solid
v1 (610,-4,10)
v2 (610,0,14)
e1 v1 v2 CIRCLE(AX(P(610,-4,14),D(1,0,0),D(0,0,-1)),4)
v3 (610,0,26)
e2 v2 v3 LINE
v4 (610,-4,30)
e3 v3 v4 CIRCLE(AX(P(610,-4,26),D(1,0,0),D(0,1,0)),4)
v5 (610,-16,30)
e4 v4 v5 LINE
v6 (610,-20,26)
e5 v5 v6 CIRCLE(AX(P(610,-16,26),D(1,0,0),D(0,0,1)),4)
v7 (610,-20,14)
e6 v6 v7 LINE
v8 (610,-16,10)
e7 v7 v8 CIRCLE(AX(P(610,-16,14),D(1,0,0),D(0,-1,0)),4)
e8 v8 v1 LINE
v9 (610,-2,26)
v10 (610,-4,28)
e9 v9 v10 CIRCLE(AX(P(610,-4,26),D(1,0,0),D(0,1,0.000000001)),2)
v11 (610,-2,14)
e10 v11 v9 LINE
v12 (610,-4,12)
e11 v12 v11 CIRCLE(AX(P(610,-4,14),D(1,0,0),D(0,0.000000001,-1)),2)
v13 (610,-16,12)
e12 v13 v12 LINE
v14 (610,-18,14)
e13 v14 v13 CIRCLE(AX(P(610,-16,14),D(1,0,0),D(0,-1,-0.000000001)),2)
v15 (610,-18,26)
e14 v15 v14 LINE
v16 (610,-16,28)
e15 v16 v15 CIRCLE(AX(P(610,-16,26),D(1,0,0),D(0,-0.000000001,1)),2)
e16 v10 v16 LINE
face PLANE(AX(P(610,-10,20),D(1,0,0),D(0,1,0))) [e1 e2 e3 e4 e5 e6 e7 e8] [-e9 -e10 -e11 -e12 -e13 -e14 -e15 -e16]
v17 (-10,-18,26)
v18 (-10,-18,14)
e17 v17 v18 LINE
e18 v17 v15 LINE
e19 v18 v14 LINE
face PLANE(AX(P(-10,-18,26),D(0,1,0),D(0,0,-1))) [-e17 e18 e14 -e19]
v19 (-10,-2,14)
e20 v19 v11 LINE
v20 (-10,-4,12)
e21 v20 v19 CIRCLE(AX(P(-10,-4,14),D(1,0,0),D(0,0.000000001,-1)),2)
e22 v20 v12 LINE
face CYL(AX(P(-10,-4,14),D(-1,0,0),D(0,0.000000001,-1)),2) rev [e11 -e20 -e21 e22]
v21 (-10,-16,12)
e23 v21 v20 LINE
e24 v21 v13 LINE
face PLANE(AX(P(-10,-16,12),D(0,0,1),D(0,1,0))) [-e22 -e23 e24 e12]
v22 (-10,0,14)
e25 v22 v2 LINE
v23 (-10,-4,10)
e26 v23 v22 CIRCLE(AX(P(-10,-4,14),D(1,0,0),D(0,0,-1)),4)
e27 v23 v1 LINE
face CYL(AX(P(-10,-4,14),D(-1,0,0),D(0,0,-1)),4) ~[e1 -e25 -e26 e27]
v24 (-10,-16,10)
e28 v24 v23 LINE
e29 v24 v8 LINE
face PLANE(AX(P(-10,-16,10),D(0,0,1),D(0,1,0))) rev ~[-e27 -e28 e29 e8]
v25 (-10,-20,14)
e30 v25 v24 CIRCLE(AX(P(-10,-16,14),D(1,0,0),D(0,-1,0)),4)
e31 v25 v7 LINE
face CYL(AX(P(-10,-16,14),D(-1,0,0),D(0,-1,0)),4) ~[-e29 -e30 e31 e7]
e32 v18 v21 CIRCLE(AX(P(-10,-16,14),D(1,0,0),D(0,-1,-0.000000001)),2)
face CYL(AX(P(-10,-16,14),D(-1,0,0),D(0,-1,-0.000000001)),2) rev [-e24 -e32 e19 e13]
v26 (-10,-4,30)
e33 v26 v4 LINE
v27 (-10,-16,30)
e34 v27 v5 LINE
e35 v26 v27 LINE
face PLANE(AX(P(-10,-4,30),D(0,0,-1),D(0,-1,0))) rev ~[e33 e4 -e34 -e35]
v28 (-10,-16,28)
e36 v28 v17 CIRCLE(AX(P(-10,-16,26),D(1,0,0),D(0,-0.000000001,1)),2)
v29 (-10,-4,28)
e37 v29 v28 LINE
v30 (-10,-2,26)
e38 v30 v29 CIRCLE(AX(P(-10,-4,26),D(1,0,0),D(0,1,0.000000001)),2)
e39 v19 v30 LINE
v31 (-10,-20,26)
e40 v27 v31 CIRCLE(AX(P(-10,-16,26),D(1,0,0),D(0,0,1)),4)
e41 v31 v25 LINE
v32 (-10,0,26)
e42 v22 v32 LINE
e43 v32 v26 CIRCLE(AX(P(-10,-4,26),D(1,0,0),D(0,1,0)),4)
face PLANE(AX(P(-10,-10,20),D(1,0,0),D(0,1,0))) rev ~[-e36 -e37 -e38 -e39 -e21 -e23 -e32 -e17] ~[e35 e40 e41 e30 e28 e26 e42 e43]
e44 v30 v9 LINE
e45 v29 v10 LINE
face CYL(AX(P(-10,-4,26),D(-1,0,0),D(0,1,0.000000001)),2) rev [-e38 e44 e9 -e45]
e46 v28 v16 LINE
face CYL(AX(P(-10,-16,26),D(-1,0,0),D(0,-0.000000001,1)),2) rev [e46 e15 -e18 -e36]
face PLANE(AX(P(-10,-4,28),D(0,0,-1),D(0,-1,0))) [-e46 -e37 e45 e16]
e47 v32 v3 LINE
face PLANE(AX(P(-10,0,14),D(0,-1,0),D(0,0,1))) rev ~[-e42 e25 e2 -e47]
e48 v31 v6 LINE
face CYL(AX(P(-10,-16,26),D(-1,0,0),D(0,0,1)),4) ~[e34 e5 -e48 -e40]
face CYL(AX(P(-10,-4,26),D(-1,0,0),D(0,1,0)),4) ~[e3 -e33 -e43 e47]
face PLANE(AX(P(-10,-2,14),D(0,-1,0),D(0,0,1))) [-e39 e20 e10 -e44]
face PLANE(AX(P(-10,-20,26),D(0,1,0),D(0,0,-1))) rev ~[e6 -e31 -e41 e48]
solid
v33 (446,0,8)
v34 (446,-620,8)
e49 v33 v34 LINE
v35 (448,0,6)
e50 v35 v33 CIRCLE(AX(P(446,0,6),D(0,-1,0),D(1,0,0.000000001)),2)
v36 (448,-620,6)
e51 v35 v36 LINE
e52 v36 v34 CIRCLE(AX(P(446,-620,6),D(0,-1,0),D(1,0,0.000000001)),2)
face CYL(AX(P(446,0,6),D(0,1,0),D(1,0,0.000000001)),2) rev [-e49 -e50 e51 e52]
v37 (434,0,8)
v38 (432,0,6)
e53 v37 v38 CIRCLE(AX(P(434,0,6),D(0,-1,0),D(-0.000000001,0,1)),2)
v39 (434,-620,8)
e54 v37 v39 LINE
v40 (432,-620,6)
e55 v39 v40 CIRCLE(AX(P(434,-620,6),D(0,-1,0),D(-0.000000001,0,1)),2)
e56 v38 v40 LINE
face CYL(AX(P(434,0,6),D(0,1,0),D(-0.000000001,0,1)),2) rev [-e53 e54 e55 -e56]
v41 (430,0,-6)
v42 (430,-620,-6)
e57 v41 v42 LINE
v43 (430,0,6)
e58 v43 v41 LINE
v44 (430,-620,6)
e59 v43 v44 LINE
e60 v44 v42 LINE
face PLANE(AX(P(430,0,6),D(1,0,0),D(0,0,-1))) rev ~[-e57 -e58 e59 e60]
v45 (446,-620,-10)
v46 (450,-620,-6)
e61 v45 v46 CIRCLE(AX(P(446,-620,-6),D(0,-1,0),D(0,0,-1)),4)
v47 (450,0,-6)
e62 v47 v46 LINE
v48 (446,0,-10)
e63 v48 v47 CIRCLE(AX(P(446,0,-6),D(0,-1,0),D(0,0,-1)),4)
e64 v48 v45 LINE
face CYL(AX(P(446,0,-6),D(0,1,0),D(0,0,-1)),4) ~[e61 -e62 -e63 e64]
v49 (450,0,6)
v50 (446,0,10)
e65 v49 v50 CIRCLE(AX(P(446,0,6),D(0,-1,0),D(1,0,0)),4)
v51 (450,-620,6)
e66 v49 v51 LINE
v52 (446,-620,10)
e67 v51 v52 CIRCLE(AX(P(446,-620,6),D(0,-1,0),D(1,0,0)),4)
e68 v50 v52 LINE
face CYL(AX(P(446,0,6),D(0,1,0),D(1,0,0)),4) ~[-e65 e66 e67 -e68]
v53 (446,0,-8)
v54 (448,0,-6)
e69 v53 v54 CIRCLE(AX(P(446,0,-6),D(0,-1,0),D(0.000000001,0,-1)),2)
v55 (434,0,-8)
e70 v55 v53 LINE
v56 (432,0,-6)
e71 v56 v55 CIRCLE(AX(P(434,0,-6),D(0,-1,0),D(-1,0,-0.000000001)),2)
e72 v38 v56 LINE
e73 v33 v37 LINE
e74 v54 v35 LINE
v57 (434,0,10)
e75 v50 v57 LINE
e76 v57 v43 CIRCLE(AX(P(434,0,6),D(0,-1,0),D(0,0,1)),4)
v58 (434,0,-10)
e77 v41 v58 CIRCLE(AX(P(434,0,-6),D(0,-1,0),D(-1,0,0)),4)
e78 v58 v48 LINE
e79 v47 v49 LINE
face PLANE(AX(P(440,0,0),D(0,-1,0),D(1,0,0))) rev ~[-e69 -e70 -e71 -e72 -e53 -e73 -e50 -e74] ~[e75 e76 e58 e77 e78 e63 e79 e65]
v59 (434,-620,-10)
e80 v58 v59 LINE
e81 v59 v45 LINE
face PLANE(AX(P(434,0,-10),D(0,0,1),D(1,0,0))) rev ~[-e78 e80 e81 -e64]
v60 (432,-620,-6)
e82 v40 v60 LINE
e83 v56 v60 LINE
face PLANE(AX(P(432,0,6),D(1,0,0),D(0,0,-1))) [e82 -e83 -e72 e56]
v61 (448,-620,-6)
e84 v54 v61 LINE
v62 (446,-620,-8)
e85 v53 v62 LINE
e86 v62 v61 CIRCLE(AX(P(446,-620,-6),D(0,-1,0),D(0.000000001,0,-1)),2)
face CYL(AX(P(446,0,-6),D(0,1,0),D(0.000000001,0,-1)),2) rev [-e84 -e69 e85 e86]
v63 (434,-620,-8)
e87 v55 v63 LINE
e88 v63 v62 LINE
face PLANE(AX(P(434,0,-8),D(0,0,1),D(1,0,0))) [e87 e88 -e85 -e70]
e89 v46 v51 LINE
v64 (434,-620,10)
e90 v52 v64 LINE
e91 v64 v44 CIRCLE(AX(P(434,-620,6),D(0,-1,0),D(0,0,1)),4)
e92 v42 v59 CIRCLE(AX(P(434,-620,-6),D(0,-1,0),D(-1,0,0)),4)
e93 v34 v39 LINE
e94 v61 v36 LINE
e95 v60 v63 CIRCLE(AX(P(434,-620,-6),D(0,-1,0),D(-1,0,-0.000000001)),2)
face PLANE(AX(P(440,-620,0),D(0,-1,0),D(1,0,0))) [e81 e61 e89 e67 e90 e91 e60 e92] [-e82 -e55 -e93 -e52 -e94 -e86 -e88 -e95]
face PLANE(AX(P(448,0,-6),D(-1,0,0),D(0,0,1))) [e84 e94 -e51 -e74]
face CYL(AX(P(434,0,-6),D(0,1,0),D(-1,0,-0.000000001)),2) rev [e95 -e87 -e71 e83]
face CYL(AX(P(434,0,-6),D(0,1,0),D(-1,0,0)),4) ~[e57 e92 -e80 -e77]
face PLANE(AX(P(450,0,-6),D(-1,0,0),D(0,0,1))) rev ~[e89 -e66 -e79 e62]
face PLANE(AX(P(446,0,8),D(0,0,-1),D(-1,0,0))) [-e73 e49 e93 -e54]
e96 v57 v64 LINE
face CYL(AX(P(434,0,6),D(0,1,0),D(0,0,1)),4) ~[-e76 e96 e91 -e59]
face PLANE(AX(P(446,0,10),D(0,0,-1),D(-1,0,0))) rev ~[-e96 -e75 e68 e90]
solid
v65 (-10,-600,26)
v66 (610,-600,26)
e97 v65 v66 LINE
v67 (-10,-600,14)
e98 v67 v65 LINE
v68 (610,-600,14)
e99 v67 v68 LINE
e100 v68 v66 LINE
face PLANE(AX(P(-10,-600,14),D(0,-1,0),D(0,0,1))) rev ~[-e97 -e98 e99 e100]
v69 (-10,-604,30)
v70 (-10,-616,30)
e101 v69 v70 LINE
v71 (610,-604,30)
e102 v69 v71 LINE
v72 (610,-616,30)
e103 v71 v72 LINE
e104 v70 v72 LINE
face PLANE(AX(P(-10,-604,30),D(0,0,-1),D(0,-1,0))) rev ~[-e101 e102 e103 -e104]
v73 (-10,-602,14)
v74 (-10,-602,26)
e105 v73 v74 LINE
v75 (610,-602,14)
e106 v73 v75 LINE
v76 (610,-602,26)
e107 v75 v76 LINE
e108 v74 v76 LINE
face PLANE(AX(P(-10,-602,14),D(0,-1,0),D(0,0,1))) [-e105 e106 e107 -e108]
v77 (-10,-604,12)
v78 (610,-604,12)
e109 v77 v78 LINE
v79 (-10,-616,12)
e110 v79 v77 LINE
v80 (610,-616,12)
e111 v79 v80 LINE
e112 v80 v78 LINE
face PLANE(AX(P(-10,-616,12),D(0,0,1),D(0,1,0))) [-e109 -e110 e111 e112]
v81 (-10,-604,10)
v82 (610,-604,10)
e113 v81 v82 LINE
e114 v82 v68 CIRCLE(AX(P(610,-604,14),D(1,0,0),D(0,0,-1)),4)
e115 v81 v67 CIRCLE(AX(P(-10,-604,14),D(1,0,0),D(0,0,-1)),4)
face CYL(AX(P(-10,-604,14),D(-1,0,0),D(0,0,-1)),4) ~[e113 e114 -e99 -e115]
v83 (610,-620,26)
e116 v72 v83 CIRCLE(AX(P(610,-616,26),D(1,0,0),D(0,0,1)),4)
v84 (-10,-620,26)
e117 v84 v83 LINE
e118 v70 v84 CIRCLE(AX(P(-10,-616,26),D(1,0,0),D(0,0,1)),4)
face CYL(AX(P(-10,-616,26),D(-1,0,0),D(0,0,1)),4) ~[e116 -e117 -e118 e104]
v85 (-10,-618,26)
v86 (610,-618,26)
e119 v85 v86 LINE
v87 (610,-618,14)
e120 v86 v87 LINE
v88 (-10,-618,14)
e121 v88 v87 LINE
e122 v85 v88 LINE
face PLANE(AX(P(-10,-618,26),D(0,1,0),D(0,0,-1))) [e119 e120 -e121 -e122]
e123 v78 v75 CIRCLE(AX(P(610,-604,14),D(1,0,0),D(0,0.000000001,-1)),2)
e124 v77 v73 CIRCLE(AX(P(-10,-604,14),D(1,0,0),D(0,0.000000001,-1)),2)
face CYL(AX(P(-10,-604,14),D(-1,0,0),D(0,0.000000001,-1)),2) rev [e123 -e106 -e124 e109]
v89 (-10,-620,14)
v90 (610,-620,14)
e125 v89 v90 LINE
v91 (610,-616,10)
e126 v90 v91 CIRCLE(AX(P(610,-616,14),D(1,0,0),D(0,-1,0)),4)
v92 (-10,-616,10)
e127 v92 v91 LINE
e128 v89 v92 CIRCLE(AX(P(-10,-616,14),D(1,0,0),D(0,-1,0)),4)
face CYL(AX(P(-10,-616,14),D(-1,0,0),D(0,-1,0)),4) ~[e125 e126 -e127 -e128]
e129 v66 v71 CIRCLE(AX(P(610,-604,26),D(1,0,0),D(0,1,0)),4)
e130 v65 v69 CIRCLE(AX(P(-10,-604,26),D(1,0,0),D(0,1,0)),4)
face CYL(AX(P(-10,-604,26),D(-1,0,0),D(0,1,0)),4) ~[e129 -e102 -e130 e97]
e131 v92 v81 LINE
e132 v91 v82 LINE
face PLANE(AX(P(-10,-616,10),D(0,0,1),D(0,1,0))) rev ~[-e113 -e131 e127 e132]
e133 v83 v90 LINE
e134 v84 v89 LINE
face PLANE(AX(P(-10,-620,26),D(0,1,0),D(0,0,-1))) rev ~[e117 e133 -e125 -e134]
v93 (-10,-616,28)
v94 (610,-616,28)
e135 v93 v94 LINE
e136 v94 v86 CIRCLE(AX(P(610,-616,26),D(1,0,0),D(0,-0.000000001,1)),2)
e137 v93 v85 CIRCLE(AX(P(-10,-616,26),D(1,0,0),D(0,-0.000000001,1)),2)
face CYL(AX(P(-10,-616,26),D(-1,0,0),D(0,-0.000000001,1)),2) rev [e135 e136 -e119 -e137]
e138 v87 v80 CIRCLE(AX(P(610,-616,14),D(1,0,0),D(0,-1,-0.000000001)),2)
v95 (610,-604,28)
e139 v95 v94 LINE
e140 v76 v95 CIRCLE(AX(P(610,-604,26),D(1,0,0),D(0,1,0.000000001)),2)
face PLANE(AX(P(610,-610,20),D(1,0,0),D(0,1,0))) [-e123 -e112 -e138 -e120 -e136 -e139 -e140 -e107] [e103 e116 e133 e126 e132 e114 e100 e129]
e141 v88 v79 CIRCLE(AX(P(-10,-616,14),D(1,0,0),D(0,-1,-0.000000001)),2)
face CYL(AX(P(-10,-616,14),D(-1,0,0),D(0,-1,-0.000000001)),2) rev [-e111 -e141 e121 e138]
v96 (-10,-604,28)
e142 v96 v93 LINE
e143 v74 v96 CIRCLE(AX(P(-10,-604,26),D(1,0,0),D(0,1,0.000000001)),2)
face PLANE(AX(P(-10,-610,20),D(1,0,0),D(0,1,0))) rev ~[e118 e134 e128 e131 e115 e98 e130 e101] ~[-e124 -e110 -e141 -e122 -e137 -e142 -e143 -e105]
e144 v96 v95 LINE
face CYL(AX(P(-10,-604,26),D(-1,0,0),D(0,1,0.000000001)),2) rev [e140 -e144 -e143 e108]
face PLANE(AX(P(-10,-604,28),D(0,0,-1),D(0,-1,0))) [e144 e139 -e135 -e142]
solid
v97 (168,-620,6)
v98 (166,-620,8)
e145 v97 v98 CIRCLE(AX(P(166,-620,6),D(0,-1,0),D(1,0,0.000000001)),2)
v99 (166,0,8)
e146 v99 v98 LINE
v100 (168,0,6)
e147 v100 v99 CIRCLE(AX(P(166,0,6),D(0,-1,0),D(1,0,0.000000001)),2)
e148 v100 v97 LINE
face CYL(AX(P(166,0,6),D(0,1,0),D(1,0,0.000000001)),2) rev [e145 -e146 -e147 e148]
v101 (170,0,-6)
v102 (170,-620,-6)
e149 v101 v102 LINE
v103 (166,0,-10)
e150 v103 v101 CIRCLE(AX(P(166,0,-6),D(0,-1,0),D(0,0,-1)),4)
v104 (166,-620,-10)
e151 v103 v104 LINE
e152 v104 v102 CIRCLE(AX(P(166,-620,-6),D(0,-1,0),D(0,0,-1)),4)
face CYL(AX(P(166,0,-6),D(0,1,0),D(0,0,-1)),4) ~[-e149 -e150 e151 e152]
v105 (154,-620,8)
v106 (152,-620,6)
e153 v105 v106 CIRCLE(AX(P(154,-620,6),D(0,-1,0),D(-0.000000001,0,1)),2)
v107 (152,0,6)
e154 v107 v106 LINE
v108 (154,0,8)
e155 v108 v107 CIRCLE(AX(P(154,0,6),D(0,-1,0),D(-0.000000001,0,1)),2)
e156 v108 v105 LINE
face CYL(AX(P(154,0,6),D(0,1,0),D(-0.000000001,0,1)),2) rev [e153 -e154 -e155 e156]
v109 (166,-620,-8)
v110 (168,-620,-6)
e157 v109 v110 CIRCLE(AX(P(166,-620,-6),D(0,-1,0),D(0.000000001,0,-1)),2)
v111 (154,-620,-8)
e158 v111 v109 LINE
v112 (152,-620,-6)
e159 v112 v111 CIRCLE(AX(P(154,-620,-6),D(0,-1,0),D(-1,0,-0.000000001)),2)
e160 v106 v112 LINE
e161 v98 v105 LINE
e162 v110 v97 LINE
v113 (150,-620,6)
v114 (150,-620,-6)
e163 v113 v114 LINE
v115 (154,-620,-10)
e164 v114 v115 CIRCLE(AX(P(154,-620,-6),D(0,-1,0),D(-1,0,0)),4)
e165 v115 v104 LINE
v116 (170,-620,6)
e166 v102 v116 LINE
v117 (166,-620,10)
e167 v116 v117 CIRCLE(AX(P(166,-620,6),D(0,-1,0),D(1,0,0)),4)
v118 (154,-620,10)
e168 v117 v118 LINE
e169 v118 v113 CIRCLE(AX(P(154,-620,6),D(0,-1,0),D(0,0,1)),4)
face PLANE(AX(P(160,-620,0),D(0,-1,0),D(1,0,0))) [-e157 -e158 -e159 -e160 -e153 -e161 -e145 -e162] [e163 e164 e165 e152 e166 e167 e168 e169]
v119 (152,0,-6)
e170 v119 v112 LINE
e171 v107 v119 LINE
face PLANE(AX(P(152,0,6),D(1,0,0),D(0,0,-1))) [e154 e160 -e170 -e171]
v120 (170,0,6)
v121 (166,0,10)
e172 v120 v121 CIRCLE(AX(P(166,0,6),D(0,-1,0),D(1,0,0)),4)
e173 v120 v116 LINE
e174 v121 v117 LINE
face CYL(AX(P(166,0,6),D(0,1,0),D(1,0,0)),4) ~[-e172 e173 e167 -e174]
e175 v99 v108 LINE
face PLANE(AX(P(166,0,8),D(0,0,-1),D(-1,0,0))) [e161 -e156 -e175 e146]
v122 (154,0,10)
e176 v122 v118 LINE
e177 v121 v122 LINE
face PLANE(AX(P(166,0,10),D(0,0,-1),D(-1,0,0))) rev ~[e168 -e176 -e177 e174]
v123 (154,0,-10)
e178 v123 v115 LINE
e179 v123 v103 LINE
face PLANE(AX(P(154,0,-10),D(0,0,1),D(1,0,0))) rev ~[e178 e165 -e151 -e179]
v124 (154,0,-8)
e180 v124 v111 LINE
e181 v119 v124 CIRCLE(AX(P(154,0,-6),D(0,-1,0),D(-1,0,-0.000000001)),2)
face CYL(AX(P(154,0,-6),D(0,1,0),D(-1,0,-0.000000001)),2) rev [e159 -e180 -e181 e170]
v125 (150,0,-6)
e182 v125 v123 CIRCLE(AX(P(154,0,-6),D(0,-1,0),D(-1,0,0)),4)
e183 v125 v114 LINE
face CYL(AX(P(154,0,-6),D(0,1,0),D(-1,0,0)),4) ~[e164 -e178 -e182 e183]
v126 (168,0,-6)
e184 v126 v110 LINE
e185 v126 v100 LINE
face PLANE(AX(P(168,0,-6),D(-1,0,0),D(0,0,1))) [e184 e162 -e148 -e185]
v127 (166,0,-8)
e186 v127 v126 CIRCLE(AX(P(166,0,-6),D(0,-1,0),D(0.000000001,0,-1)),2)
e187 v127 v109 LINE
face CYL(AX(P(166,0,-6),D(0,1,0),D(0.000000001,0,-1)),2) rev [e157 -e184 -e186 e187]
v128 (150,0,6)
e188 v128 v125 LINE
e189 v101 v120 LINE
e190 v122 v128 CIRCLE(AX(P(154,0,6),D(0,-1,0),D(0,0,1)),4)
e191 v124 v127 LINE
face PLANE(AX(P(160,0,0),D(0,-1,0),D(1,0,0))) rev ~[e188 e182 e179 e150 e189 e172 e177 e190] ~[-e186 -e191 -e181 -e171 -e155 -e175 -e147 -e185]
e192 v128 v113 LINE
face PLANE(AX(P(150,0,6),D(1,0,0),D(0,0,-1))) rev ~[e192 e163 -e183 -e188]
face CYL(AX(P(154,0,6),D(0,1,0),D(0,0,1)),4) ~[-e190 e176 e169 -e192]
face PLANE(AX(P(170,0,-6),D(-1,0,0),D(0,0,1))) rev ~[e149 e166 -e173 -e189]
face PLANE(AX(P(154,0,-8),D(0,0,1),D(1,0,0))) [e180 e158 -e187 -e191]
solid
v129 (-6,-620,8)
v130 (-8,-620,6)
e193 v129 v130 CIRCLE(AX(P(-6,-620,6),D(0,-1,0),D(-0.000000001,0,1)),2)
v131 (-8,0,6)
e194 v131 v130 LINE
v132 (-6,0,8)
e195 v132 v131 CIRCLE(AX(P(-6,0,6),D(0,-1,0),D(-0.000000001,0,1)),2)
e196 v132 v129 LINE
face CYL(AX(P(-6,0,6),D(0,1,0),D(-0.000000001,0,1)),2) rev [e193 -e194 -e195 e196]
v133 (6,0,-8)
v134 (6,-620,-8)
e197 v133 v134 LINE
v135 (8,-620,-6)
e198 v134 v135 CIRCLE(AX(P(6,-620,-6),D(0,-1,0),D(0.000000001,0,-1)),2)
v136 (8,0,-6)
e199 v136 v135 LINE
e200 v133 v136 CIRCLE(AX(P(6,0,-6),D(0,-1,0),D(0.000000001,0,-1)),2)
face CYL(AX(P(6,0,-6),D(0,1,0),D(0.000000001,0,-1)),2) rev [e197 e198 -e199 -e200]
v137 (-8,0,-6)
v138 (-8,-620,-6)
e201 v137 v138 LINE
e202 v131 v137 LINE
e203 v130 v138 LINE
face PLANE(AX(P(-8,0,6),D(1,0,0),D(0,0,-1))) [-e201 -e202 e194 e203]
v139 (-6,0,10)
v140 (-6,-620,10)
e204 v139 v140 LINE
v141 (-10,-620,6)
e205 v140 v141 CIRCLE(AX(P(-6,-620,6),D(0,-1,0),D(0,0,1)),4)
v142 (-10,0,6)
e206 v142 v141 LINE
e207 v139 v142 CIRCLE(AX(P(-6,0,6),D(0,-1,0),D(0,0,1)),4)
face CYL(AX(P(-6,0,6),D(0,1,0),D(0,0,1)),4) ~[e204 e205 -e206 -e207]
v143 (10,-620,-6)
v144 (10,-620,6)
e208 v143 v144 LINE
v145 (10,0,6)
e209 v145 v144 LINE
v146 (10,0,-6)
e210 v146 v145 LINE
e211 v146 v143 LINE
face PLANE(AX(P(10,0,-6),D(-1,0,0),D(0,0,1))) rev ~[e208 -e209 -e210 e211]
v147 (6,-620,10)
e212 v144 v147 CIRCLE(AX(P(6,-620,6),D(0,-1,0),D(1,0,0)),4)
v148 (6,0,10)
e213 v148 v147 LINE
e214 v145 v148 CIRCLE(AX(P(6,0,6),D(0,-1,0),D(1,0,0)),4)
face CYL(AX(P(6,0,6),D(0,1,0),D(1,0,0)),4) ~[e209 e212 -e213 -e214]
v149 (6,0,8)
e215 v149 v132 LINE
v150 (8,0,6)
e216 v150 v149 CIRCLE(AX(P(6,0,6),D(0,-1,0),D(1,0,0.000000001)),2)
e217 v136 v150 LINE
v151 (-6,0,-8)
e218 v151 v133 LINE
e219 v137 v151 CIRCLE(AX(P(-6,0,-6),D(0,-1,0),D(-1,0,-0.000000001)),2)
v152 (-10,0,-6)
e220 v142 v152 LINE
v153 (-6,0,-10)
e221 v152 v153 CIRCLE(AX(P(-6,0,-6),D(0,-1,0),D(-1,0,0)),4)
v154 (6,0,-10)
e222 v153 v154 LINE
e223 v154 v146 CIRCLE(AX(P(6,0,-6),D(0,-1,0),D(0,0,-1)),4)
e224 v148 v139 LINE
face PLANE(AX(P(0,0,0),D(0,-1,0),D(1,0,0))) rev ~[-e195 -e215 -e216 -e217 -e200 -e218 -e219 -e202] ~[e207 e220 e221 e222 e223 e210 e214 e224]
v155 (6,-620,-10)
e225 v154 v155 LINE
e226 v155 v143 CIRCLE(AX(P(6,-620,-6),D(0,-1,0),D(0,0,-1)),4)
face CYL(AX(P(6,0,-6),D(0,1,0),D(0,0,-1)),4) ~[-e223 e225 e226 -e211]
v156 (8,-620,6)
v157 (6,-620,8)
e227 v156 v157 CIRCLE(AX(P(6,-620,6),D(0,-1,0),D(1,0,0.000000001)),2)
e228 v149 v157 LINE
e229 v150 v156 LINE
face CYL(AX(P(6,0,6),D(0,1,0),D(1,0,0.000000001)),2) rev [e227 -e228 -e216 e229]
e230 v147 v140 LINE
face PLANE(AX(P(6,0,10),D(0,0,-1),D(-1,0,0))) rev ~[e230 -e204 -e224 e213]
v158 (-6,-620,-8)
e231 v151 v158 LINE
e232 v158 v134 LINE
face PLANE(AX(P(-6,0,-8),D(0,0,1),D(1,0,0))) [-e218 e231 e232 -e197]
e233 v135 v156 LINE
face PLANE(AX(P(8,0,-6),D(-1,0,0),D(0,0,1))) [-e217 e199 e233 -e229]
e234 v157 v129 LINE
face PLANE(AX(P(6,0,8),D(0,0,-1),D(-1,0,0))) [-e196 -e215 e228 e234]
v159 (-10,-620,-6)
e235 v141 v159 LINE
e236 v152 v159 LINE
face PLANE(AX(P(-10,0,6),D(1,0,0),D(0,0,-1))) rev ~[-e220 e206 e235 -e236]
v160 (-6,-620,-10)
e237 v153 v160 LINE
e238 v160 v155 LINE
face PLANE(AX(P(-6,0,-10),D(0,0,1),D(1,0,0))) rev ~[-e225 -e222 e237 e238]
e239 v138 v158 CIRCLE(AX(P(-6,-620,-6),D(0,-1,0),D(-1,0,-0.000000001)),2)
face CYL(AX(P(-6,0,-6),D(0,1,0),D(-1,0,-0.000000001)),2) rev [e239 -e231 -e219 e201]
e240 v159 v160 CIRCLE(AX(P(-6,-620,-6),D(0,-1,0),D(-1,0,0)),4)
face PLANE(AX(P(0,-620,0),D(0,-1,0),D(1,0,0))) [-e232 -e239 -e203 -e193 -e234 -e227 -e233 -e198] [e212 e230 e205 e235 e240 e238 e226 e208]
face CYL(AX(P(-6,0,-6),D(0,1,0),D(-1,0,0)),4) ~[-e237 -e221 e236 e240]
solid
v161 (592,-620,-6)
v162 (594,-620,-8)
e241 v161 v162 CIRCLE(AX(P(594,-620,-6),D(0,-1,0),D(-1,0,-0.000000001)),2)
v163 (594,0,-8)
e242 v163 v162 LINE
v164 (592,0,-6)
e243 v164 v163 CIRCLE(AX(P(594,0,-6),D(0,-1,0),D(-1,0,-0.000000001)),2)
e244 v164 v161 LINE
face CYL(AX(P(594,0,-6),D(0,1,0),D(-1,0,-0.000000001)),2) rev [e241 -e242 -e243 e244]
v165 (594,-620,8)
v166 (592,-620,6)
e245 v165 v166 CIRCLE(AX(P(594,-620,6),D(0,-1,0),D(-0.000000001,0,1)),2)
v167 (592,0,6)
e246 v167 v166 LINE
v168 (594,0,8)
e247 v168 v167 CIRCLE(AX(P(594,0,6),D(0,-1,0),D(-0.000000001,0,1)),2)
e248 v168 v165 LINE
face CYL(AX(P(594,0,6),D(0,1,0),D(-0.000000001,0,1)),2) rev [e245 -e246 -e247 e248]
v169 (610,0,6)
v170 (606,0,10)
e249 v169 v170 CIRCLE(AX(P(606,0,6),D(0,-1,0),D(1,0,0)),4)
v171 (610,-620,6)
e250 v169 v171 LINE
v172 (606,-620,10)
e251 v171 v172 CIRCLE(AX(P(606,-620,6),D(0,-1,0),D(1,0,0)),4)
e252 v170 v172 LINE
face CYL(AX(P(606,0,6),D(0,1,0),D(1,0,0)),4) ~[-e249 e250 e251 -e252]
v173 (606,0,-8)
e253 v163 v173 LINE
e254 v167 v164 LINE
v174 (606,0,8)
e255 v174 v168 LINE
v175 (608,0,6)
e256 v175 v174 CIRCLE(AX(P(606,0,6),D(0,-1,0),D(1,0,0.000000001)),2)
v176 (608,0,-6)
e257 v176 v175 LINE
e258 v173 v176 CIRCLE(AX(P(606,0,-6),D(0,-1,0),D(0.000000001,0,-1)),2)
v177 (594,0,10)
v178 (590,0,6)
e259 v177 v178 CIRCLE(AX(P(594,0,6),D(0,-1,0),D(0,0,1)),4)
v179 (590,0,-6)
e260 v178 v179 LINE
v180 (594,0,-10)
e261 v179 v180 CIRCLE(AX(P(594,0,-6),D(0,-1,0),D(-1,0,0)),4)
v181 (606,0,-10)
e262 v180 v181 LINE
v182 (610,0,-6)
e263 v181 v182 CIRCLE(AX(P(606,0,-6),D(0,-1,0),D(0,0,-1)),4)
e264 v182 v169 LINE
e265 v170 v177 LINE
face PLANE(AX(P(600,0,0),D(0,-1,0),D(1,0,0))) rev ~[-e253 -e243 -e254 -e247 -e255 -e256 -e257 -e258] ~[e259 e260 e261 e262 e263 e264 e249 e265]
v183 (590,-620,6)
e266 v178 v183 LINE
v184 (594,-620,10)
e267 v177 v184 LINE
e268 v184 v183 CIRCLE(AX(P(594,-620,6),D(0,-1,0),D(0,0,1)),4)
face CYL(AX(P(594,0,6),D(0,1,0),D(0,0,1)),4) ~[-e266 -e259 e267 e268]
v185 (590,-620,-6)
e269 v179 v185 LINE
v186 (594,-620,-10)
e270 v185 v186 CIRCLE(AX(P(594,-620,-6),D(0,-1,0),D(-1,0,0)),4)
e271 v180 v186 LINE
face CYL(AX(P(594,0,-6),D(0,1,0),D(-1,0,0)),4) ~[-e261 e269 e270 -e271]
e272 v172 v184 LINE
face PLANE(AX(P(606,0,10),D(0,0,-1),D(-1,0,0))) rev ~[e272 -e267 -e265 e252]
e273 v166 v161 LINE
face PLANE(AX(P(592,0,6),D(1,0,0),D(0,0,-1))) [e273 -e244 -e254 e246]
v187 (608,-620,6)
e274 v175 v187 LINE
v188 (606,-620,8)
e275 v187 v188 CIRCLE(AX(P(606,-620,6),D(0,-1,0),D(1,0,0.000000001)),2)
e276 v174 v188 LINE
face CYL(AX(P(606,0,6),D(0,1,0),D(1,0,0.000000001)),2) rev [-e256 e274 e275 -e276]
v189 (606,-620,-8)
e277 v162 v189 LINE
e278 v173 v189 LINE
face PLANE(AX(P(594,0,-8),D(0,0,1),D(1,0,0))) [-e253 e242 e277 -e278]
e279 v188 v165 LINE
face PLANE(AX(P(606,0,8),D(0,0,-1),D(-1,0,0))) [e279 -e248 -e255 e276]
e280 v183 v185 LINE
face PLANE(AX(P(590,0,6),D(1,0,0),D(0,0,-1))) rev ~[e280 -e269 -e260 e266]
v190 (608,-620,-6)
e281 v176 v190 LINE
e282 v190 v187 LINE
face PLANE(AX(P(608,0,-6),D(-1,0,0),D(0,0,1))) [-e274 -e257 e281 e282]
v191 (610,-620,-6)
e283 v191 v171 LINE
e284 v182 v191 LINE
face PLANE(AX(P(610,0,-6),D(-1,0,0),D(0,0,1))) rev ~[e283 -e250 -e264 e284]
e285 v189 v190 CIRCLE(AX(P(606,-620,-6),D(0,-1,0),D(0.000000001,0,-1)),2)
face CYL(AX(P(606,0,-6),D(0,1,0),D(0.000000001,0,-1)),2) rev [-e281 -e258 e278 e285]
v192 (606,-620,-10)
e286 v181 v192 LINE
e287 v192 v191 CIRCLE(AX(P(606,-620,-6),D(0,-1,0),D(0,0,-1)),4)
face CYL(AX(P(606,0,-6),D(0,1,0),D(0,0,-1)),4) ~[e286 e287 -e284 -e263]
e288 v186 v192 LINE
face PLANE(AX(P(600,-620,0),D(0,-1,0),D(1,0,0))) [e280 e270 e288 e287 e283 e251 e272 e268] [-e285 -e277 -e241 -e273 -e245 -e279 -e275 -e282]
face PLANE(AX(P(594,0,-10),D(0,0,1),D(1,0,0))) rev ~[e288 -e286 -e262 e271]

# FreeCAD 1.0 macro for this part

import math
import FreeCAD as App
import Part
import Sketcher

V = App.Vector

doc = App.newDocument("Part")
body = doc.addObject("PartDesign::Body", "Body")

# Sketch on XZ plane
sketch1 = doc.addObject("Sketcher::SketchObject", "Sketch")
body.addObject(sketch1)
sketch1.AttachmentSupport = (doc.XZ_Plane, [""])
sketch1.MapMode = "FlatFace"
sketch1.addGeometry([
    Part.LineSegment(V(594, -10, 0), V(606, -10, 0)),  # 0
    Part.ArcOfCircle(Part.Circle(V(606, -6, 0), V(0, 0, 1), 4), math.radians(-90), math.radians(0)),  # 1
    Part.LineSegment(V(610, -6, 0), V(610, 6, 0)),  # 2
    Part.ArcOfCircle(Part.Circle(V(606, 6, 0), V(0, 0, 1), 4), math.radians(0), math.radians(90)),  # 3
    Part.LineSegment(V(606, 10, 0), V(594, 10, 0)),  # 4
    Part.ArcOfCircle(Part.Circle(V(594, 6, 0), V(0, 0, 1), 4), math.radians(90), math.radians(180)),  # 5
    Part.LineSegment(V(590, 6, 0), V(590, -6, 0)),  # 6
    Part.ArcOfCircle(Part.Circle(V(594, -6, 0), V(0, 0, 1), 4), math.radians(180), math.radians(270)),  # 7
    Part.LineSegment(V(606, -8, 0), V(594, -8, 0)),  # 8
    Part.ArcOfCircle(Part.Circle(V(594, -6, 0), V(0, 0, 1), 2), math.radians(-180), math.radians(-90)),  # 9
    Part.LineSegment(V(592, -6, 0), V(592, 6, 0)),  # 10
    Part.ArcOfCircle(Part.Circle(V(594, 6, 0), V(0, 0, 1), 2), math.radians(90), math.radians(180)),  # 11
    Part.LineSegment(V(594, 8, 0), V(606, 8, 0)),  # 12
    Part.ArcOfCircle(Part.Circle(V(606, 6, 0), V(0, 0, 1), 2), math.radians(0), math.radians(90)),  # 13
    Part.LineSegment(V(608, 6, 0), V(608, -6, 0)),  # 14
    Part.ArcOfCircle(Part.Circle(V(606, -6, 0), V(0, 0, 1), 2), math.radians(-90), math.radians(0)),  # 15
], False)
sketch1.addConstraint([
    Sketcher.Constraint("Tangent", 0, 2, 1, 1),
    Sketcher.Constraint("Tangent", 1, 2, 2, 1),
    Sketcher.Constraint("Tangent", 2, 2, 3, 1),
    Sketcher.Constraint("Tangent", 3, 2, 4, 1),
    Sketcher.Constraint("Tangent", 4, 2, 5, 1),
    Sketcher.Constraint("Tangent", 5, 2, 6, 1),
    Sketcher.Constraint("Tangent", 6, 2, 7, 1),
    Sketcher.Constraint("Tangent", 7, 2, 0, 1),
    Sketcher.Constraint("Tangent", 8, 2, 9, 2),
    Sketcher.Constraint("Tangent", 9, 1, 10, 1),
    Sketcher.Constraint("Tangent", 10, 2, 11, 2),
    Sketcher.Constraint("Tangent", 11, 1, 12, 1),
    Sketcher.Constraint("Tangent", 12, 2, 13, 2),
    Sketcher.Constraint("Tangent", 13, 1, 14, 1),
    Sketcher.Constraint("Tangent", 14, 2, 15, 2),
    Sketcher.Constraint("Tangent", 15, 1, 8, 1),
    Sketcher.Constraint("Horizontal", 0),
    Sketcher.Constraint("Vertical", 2),
    Sketcher.Constraint("Horizontal", 4),
    Sketcher.Constraint("Vertical", 6),
    Sketcher.Constraint("Horizontal", 8),
    Sketcher.Constraint("Vertical", 10),
    Sketcher.Constraint("Horizontal", 12),
    Sketcher.Constraint("Vertical", 14),
    Sketcher.Constraint("Coincident", 9, 3, 7, 3),
    Sketcher.Constraint("Coincident", 11, 3, 5, 3),
    Sketcher.Constraint("Coincident", 13, 3, 3, 3),
    Sketcher.Constraint("Equal", 1, 3),
    Sketcher.Constraint("Equal", 3, 5),
    Sketcher.Constraint("Equal", 5, 7),
    Sketcher.Constraint("Equal", 13, 15),
    Sketcher.Constraint("Equal", 12, 2),
    Sketcher.Constraint("Radius", 1, 4.0),
    Sketcher.Constraint("Radius", 9, 2.0),
    Sketcher.Constraint("DistanceX", 0, 1, 0, 2, 12.0),
    Sketcher.Constraint("DistanceX", -1, 1, 1, 3, 606.0),
    Sketcher.Constraint("DistanceY", 1, 3, -1, 1, 6.0),
])
pad1 = doc.addObject("PartDesign::Pad", "Pad")
body.addObject(pad1)
pad1.Profile = sketch1
pad1.Length = 620
body2 = doc.addObject("PartDesign::Body", "Body001")

# Sketch on XZ plane
sketch2 = doc.addObject("Sketcher::SketchObject", "Sketch001")
body2.addObject(sketch2)
sketch2.AttachmentSupport = (doc.getObject("XZ_Plane001"), [""])
sketch2.MapMode = "FlatFace"
sketch2.addGeometry([
    Part.LineSegment(V(-6, -10, 0), V(6, -10, 0)),  # 0
    Part.ArcOfCircle(Part.Circle(V(6, -6, 0), V(0, 0, 1), 4), math.radians(-90), math.radians(0)),  # 1
    Part.LineSegment(V(10, -6, 0), V(10, 6, 0)),  # 2
    Part.ArcOfCircle(Part.Circle(V(6, 6, 0), V(0, 0, 1), 4), math.radians(0), math.radians(90)),  # 3
    Part.LineSegment(V(6, 10, 0), V(-6, 10, 0)),  # 4
    Part.ArcOfCircle(Part.Circle(V(-6, 6, 0), V(0, 0, 1), 4), math.radians(90), math.radians(180)),  # 5
    Part.LineSegment(V(-10, 6, 0), V(-10, -6, 0)),  # 6
    Part.ArcOfCircle(Part.Circle(V(-6, -6, 0), V(0, 0, 1), 4), math.radians(180), math.radians(270)),  # 7
    Part.LineSegment(V(6, -8, 0), V(-6, -8, 0)),  # 8
    Part.ArcOfCircle(Part.Circle(V(-6, -6, 0), V(0, 0, 1), 2), math.radians(-180), math.radians(-90)),  # 9
    Part.LineSegment(V(-8, -6, 0), V(-8, 6, 0)),  # 10
    Part.ArcOfCircle(Part.Circle(V(-6, 6, 0), V(0, 0, 1), 2), math.radians(90), math.radians(180)),  # 11
    Part.LineSegment(V(-6, 8, 0), V(6, 8, 0)),  # 12
    Part.ArcOfCircle(Part.Circle(V(6, 6, 0), V(0, 0, 1), 2), math.radians(0), math.radians(90)),  # 13
    Part.LineSegment(V(8, 6, 0), V(8, -6, 0)),  # 14
    Part.ArcOfCircle(Part.Circle(V(6, -6, 0), V(0, 0, 1), 2), math.radians(-90), math.radians(0)),  # 15
], False)
sketch2.addConstraint([
    Sketcher.Constraint("Tangent", 0, 2, 1, 1),
    Sketcher.Constraint("Tangent", 1, 2, 2, 1),
    Sketcher.Constraint("Tangent", 2, 2, 3, 1),
    Sketcher.Constraint("Tangent", 3, 2, 4, 1),
    Sketcher.Constraint("Tangent", 4, 2, 5, 1),
    Sketcher.Constraint("Tangent", 5, 2, 6, 1),
    Sketcher.Constraint("Tangent", 6, 2, 7, 1),
    Sketcher.Constraint("Tangent", 7, 2, 0, 1),
    Sketcher.Constraint("Tangent", 8, 2, 9, 2),
    Sketcher.Constraint("Tangent", 9, 1, 10, 1),
    Sketcher.Constraint("Tangent", 10, 2, 11, 2),
    Sketcher.Constraint("Tangent", 11, 1, 12, 1),
    Sketcher.Constraint("Tangent", 12, 2, 13, 2),
    Sketcher.Constraint("Tangent", 13, 1, 14, 1),
    Sketcher.Constraint("Tangent", 14, 2, 15, 2),
    Sketcher.Constraint("Tangent", 15, 1, 8, 1),
    Sketcher.Constraint("Horizontal", 0),
    Sketcher.Constraint("Vertical", 2),
    Sketcher.Constraint("Horizontal", 4),
    Sketcher.Constraint("Vertical", 6),
    Sketcher.Constraint("Horizontal", 8),
    Sketcher.Constraint("Vertical", 10),
    Sketcher.Constraint("Horizontal", 12),
    Sketcher.Constraint("Vertical", 14),
    Sketcher.Constraint("Coincident", 9, 3, 7, 3),
    Sketcher.Constraint("Coincident", 11, 3, 5, 3),
    Sketcher.Constraint("Coincident", 13, 3, 3, 3),
    Sketcher.Constraint("Equal", 1, 3),
    Sketcher.Constraint("Equal", 3, 5),
    Sketcher.Constraint("Equal", 5, 7),
    Sketcher.Constraint("Equal", 13, 15),
    Sketcher.Constraint("Symmetric", 1, 3, 5, 3, -1, 1),
    Sketcher.Constraint("Equal", 12, 2),
    Sketcher.Constraint("Radius", 1, 4.0),
    Sketcher.Constraint("Radius", 9, 2.0),
    Sketcher.Constraint("DistanceX", 0, 1, 0, 2, 12.0),
])
pad2 = doc.addObject("PartDesign::Pad", "Pad001")
body2.addObject(pad2)
pad2.Profile = sketch2
pad2.Length = 620
body3 = doc.addObject("PartDesign::Body", "Body002")

# Sketch on XZ plane
sketch3 = doc.addObject("Sketcher::SketchObject", "Sketch002")
body3.addObject(sketch3)
sketch3.AttachmentSupport = (doc.getObject("XZ_Plane002"), [""])
sketch3.MapMode = "FlatFace"
sketch3.addGeometry([
    Part.LineSegment(V(434, -10, 0), V(446, -10, 0)),  # 0
    Part.ArcOfCircle(Part.Circle(V(446, -6, 0), V(0, 0, 1), 4), math.radians(-90), math.radians(0)),  # 1
    Part.LineSegment(V(450, -6, 0), V(450, 6, 0)),  # 2
    Part.ArcOfCircle(Part.Circle(V(446, 6, 0), V(0, 0, 1), 4), math.radians(0), math.radians(90)),  # 3
    Part.LineSegment(V(446, 10, 0), V(434, 10, 0)),  # 4
    Part.ArcOfCircle(Part.Circle(V(434, 6, 0), V(0, 0, 1), 4), math.radians(90), math.radians(180)),  # 5
    Part.LineSegment(V(430, 6, 0), V(430, -6, 0)),  # 6
    Part.ArcOfCircle(Part.Circle(V(434, -6, 0), V(0, 0, 1), 4), math.radians(180), math.radians(270)),  # 7
    Part.LineSegment(V(446, -8, 0), V(434, -8, 0)),  # 8
    Part.ArcOfCircle(Part.Circle(V(434, -6, 0), V(0, 0, 1), 2), math.radians(-180), math.radians(-90)),  # 9
    Part.LineSegment(V(432, -6, 0), V(432, 6, 0)),  # 10
    Part.ArcOfCircle(Part.Circle(V(434, 6, 0), V(0, 0, 1), 2), math.radians(90), math.radians(180)),  # 11
    Part.LineSegment(V(434, 8, 0), V(446, 8, 0)),  # 12
    Part.ArcOfCircle(Part.Circle(V(446, 6, 0), V(0, 0, 1), 2), math.radians(0), math.radians(90)),  # 13
    Part.LineSegment(V(448, 6, 0), V(448, -6, 0)),  # 14
    Part.ArcOfCircle(Part.Circle(V(446, -6, 0), V(0, 0, 1), 2), math.radians(-90), math.radians(0)),  # 15
], False)
sketch3.addConstraint([
    Sketcher.Constraint("Tangent", 0, 2, 1, 1),
    Sketcher.Constraint("Tangent", 1, 2, 2, 1),
    Sketcher.Constraint("Tangent", 2, 2, 3, 1),
    Sketcher.Constraint("Tangent", 3, 2, 4, 1),
    Sketcher.Constraint("Tangent", 4, 2, 5, 1),
    Sketcher.Constraint("Tangent", 5, 2, 6, 1),
    Sketcher.Constraint("Tangent", 6, 2, 7, 1),
    Sketcher.Constraint("Tangent", 7, 2, 0, 1),
    Sketcher.Constraint("Tangent", 8, 2, 9, 2),
    Sketcher.Constraint("Tangent", 9, 1, 10, 1),
    Sketcher.Constraint("Tangent", 10, 2, 11, 2),
    Sketcher.Constraint("Tangent", 11, 1, 12, 1),
    Sketcher.Constraint("Tangent", 12, 2, 13, 2),
    Sketcher.Constraint("Tangent", 13, 1, 14, 1),
    Sketcher.Constraint("Tangent", 14, 2, 15, 2),
    Sketcher.Constraint("Tangent", 15, 1, 8, 1),
    Sketcher.Constraint("Horizontal", 0),
    Sketcher.Constraint("Vertical", 2),
    Sketcher.Constraint("Horizontal", 4),
    Sketcher.Constraint("Vertical", 6),
    Sketcher.Constraint("Horizontal", 8),
    Sketcher.Constraint("Vertical", 10),
    Sketcher.Constraint("Horizontal", 12),
    Sketcher.Constraint("Vertical", 14),
    Sketcher.Constraint("Coincident", 9, 3, 7, 3),
    Sketcher.Constraint("Coincident", 11, 3, 5, 3),
    Sketcher.Constraint("Coincident", 13, 3, 3, 3),
    Sketcher.Constraint("Equal", 1, 3),
    Sketcher.Constraint("Equal", 3, 5),
    Sketcher.Constraint("Equal", 5, 7),
    Sketcher.Constraint("Equal", 13, 15),
    Sketcher.Constraint("Equal", 12, 2),
    Sketcher.Constraint("Radius", 1, 4.0),
    Sketcher.Constraint("Radius", 9, 2.0),
    Sketcher.Constraint("DistanceX", 0, 1, 0, 2, 12.0),
    Sketcher.Constraint("DistanceX", -1, 1, 1, 3, 446.0),
    Sketcher.Constraint("DistanceY", 1, 3, -1, 1, 6.0),
])
pad3 = doc.addObject("PartDesign::Pad", "Pad002")
body3.addObject(pad3)
pad3.Profile = sketch3
pad3.Length = 620
body4 = doc.addObject("PartDesign::Body", "Body003")

# Sketch on XZ plane
sketch4 = doc.addObject("Sketcher::SketchObject", "Sketch003")
body4.addObject(sketch4)
sketch4.AttachmentSupport = (doc.getObject("XZ_Plane003"), [""])
sketch4.MapMode = "FlatFace"
sketch4.addGeometry([
    Part.LineSegment(V(154, -10, 0), V(166, -10, 0)),  # 0
    Part.ArcOfCircle(Part.Circle(V(166, -6, 0), V(0, 0, 1), 4), math.radians(-90), math.radians(0)),  # 1
    Part.LineSegment(V(170, -6, 0), V(170, 6, 0)),  # 2
    Part.ArcOfCircle(Part.Circle(V(166, 6, 0), V(0, 0, 1), 4), math.radians(0), math.radians(90)),  # 3
    Part.LineSegment(V(166, 10, 0), V(154, 10, 0)),  # 4
    Part.ArcOfCircle(Part.Circle(V(154, 6, 0), V(0, 0, 1), 4), math.radians(90), math.radians(180)),  # 5
    Part.LineSegment(V(150, 6, 0), V(150, -6, 0)),  # 6
    Part.ArcOfCircle(Part.Circle(V(154, -6, 0), V(0, 0, 1), 4), math.radians(180), math.radians(270)),  # 7
    Part.LineSegment(V(166, -8, 0), V(154, -8, 0)),  # 8
    Part.ArcOfCircle(Part.Circle(V(154, -6, 0), V(0, 0, 1), 2), math.radians(-180), math.radians(-90)),  # 9
    Part.LineSegment(V(152, -6, 0), V(152, 6, 0)),  # 10
    Part.ArcOfCircle(Part.Circle(V(154, 6, 0), V(0, 0, 1), 2), math.radians(90), math.radians(180)),  # 11
    Part.LineSegment(V(154, 8, 0), V(166, 8, 0)),  # 12
    Part.ArcOfCircle(Part.Circle(V(166, 6, 0), V(0, 0, 1), 2), math.radians(0), math.radians(90)),  # 13
    Part.LineSegment(V(168, 6, 0), V(168, -6, 0)),  # 14
    Part.ArcOfCircle(Part.Circle(V(166, -6, 0), V(0, 0, 1), 2), math.radians(-90), math.radians(0)),  # 15
], False)
sketch4.addConstraint([
    Sketcher.Constraint("Tangent", 0, 2, 1, 1),
    Sketcher.Constraint("Tangent", 1, 2, 2, 1),
    Sketcher.Constraint("Tangent", 2, 2, 3, 1),
    Sketcher.Constraint("Tangent", 3, 2, 4, 1),
    Sketcher.Constraint("Tangent", 4, 2, 5, 1),
    Sketcher.Constraint("Tangent", 5, 2, 6, 1),
    Sketcher.Constraint("Tangent", 6, 2, 7, 1),
    Sketcher.Constraint("Tangent", 7, 2, 0, 1),
    Sketcher.Constraint("Tangent", 8, 2, 9, 2),
    Sketcher.Constraint("Tangent", 9, 1, 10, 1),
    Sketcher.Constraint("Tangent", 10, 2, 11, 2),
    Sketcher.Constraint("Tangent", 11, 1, 12, 1),
    Sketcher.Constraint("Tangent", 12, 2, 13, 2),
    Sketcher.Constraint("Tangent", 13, 1, 14, 1),
    Sketcher.Constraint("Tangent", 14, 2, 15, 2),
    Sketcher.Constraint("Tangent", 15, 1, 8, 1),
    Sketcher.Constraint("Horizontal", 0),
    Sketcher.Constraint("Vertical", 2),
    Sketcher.Constraint("Horizontal", 4),
    Sketcher.Constraint("Vertical", 6),
    Sketcher.Constraint("Horizontal", 8),
    Sketcher.Constraint("Vertical", 10),
    Sketcher.Constraint("Horizontal", 12),
    Sketcher.Constraint("Vertical", 14),
    Sketcher.Constraint("Coincident", 9, 3, 7, 3),
    Sketcher.Constraint("Coincident", 11, 3, 5, 3),
    Sketcher.Constraint("Coincident", 13, 3, 3, 3),
    Sketcher.Constraint("Equal", 1, 3),
    Sketcher.Constraint("Equal", 3, 5),
    Sketcher.Constraint("Equal", 5, 7),
    Sketcher.Constraint("Equal", 13, 15),
    Sketcher.Constraint("Equal", 12, 2),
    Sketcher.Constraint("Radius", 1, 4.0),
    Sketcher.Constraint("Radius", 9, 2.0),
    Sketcher.Constraint("DistanceX", 0, 1, 0, 2, 12.0),
    Sketcher.Constraint("DistanceX", -1, 1, 1, 3, 166.0),
    Sketcher.Constraint("DistanceY", 1, 3, -1, 1, 6.0),
])
pad4 = doc.addObject("PartDesign::Pad", "Pad003")
body4.addObject(pad4)
pad4.Profile = sketch4
pad4.Length = 620
body5 = doc.addObject("PartDesign::Body", "Body004")

# Sketch on YZ plane
sketch5 = doc.addObject("Sketcher::SketchObject", "Sketch004")
body5.addObject(sketch5)
sketch5.AttachmentSupport = (doc.getObject("YZ_Plane004"), [""])
sketch5.MapMode = "FlatFace"
sketch5.AttachmentOffset = App.Placement(V(0, 0, -10), App.Rotation())
sketch5.addGeometry([
    Part.LineSegment(V(-616, 10, 0), V(-604, 10, 0)),  # 0
    Part.ArcOfCircle(Part.Circle(V(-604, 14, 0), V(0, 0, 1), 4), math.radians(-90), math.radians(0)),  # 1
    Part.LineSegment(V(-600, 14, 0), V(-600, 26, 0)),  # 2
    Part.ArcOfCircle(Part.Circle(V(-604, 26, 0), V(0, 0, 1), 4), math.radians(0), math.radians(90)),  # 3
    Part.LineSegment(V(-604, 30, 0), V(-616, 30, 0)),  # 4
    Part.ArcOfCircle(Part.Circle(V(-616, 26, 0), V(0, 0, 1), 4), math.radians(90), math.radians(180)),  # 5
    Part.LineSegment(V(-620, 26, 0), V(-620, 14, 0)),  # 6
    Part.ArcOfCircle(Part.Circle(V(-616, 14, 0), V(0, 0, 1), 4), math.radians(180), math.radians(270)),  # 7
    Part.LineSegment(V(-604, 12, 0), V(-616, 12, 0)),  # 8
    Part.ArcOfCircle(Part.Circle(V(-616, 14, 0), V(0, 0, 1), 2), math.radians(-180), math.radians(-90)),  # 9
    Part.LineSegment(V(-618, 14, 0), V(-618, 26, 0)),  # 10
    Part.ArcOfCircle(Part.Circle(V(-616, 26, 0), V(0, 0, 1), 2), math.radians(90), math.radians(180)),  # 11
    Part.LineSegment(V(-616, 28, 0), V(-604, 28, 0)),  # 12
    Part.ArcOfCircle(Part.Circle(V(-604, 26, 0), V(0, 0, 1), 2), math.radians(0), math.radians(90)),  # 13
    Part.LineSegment(V(-602, 26, 0), V(-602, 14, 0)),  # 14
    Part.ArcOfCircle(Part.Circle(V(-604, 14, 0), V(0, 0, 1), 2), math.radians(-90), math.radians(0)),  # 15
], False)
sketch5.addConstraint([
    Sketcher.Constraint("Tangent", 0, 2, 1, 1),
    Sketcher.Constraint("Tangent", 1, 2, 2, 1),
    Sketcher.Constraint("Tangent", 2, 2, 3, 1),
    Sketcher.Constraint("Tangent", 3, 2, 4, 1),
    Sketcher.Constraint("Tangent", 4, 2, 5, 1),
    Sketcher.Constraint("Tangent", 5, 2, 6, 1),
    Sketcher.Constraint("Tangent", 6, 2, 7, 1),
    Sketcher.Constraint("Tangent", 7, 2, 0, 1),
    Sketcher.Constraint("Tangent", 8, 2, 9, 2),
    Sketcher.Constraint("Tangent", 9, 1, 10, 1),
    Sketcher.Constraint("Tangent", 10, 2, 11, 2),
    Sketcher.Constraint("Tangent", 11, 1, 12, 1),
    Sketcher.Constraint("Tangent", 12, 2, 13, 2),
    Sketcher.Constraint("Tangent", 13, 1, 14, 1),
    Sketcher.Constraint("Tangent", 14, 2, 15, 2),
    Sketcher.Constraint("Tangent", 15, 1, 8, 1),
    Sketcher.Constraint("Horizontal", 0),
    Sketcher.Constraint("Vertical", 2),
    Sketcher.Constraint("Horizontal", 4),
    Sketcher.Constraint("Vertical", 6),
    Sketcher.Constraint("Horizontal", 8),
    Sketcher.Constraint("Vertical", 10),
    Sketcher.Constraint("Horizontal", 12),
    Sketcher.Constraint("Vertical", 14),
    Sketcher.Constraint("Coincident", 9, 3, 7, 3),
    Sketcher.Constraint("Coincident", 11, 3, 5, 3),
    Sketcher.Constraint("Coincident", 13, 3, 3, 3),
    Sketcher.Constraint("Equal", 1, 3),
    Sketcher.Constraint("Equal", 3, 5),
    Sketcher.Constraint("Equal", 5, 7),
    Sketcher.Constraint("Equal", 13, 15),
    Sketcher.Constraint("Equal", 12, 2),
    Sketcher.Constraint("Radius", 1, 4.0),
    Sketcher.Constraint("Radius", 9, 2.0),
    Sketcher.Constraint("DistanceX", 0, 1, 0, 2, 12.0),
    Sketcher.Constraint("DistanceX", 1, 3, -1, 1, 604.0),
    Sketcher.Constraint("DistanceY", -1, 1, 1, 3, 14.0),
])
pad5 = doc.addObject("PartDesign::Pad", "Pad004")
body5.addObject(pad5)
pad5.Profile = sketch5
pad5.Length = 620
body6 = doc.addObject("PartDesign::Body", "Body005")

# Sketch on YZ plane
sketch6 = doc.addObject("Sketcher::SketchObject", "Sketch005")
body6.addObject(sketch6)
sketch6.AttachmentSupport = (doc.getObject("YZ_Plane005"), [""])
sketch6.MapMode = "FlatFace"
sketch6.AttachmentOffset = App.Placement(V(0, 0, -10), App.Rotation())
sketch6.addGeometry([
    Part.LineSegment(V(-16, 10, 0), V(-4, 10, 0)),  # 0
    Part.ArcOfCircle(Part.Circle(V(-4, 14, 0), V(0, 0, 1), 4), math.radians(-90), math.radians(0)),  # 1
    Part.LineSegment(V(0, 14, 0), V(0, 26, 0)),  # 2
    Part.ArcOfCircle(Part.Circle(V(-4, 26, 0), V(0, 0, 1), 4), math.radians(0), math.radians(90)),  # 3
    Part.LineSegment(V(-4, 30, 0), V(-16, 30, 0)),  # 4
    Part.ArcOfCircle(Part.Circle(V(-16, 26, 0), V(0, 0, 1), 4), math.radians(90), math.radians(180)),  # 5
    Part.LineSegment(V(-20, 26, 0), V(-20, 14, 0)),  # 6
    Part.ArcOfCircle(Part.Circle(V(-16, 14, 0), V(0, 0, 1), 4), math.radians(180), math.radians(270)),  # 7
    Part.LineSegment(V(-4, 12, 0), V(-16, 12, 0)),  # 8
    Part.ArcOfCircle(Part.Circle(V(-16, 14, 0), V(0, 0, 1), 2), math.radians(-180), math.radians(-90)),  # 9
    Part.LineSegment(V(-18, 14, 0), V(-18, 26, 0)),  # 10
    Part.ArcOfCircle(Part.Circle(V(-16, 26, 0), V(0, 0, 1), 2), math.radians(90), math.radians(180)),  # 11
    Part.LineSegment(V(-16, 28, 0), V(-4, 28, 0)),  # 12
    Part.ArcOfCircle(Part.Circle(V(-4, 26, 0), V(0, 0, 1), 2), math.radians(0), math.radians(90)),  # 13
    Part.LineSegment(V(-2, 26, 0), V(-2, 14, 0)),  # 14
    Part.ArcOfCircle(Part.Circle(V(-4, 14, 0), V(0, 0, 1), 2), math.radians(-90), math.radians(0)),  # 15
], False)
sketch6.addConstraint([
    Sketcher.Constraint("Tangent", 0, 2, 1, 1),
    Sketcher.Constraint("Tangent", 1, 2, 2, 1),
    Sketcher.Constraint("Tangent", 2, 2, 3, 1),
    Sketcher.Constraint("Tangent", 3, 2, 4, 1),
    Sketcher.Constraint("Tangent", 4, 2, 5, 1),
    Sketcher.Constraint("Tangent", 5, 2, 6, 1),
    Sketcher.Constraint("Tangent", 6, 2, 7, 1),
    Sketcher.Constraint("Tangent", 7, 2, 0, 1),
    Sketcher.Constraint("Tangent", 8, 2, 9, 2),
    Sketcher.Constraint("Tangent", 9, 1, 10, 1),
    Sketcher.Constraint("Tangent", 10, 2, 11, 2),
    Sketcher.Constraint("Tangent", 11, 1, 12, 1),
    Sketcher.Constraint("Tangent", 12, 2, 13, 2),
    Sketcher.Constraint("Tangent", 13, 1, 14, 1),
    Sketcher.Constraint("Tangent", 14, 2, 15, 2),
    Sketcher.Constraint("Tangent", 15, 1, 8, 1),
    Sketcher.Constraint("Horizontal", 0),
    Sketcher.Constraint("Vertical", 2),
    Sketcher.Constraint("Horizontal", 4),
    Sketcher.Constraint("Vertical", 6),
    Sketcher.Constraint("Horizontal", 8),
    Sketcher.Constraint("Vertical", 10),
    Sketcher.Constraint("Horizontal", 12),
    Sketcher.Constraint("Vertical", 14),
    Sketcher.Constraint("Coincident", 9, 3, 7, 3),
    Sketcher.Constraint("Coincident", 11, 3, 5, 3),
    Sketcher.Constraint("Coincident", 13, 3, 3, 3),
    Sketcher.Constraint("Equal", 1, 3),
    Sketcher.Constraint("Equal", 3, 5),
    Sketcher.Constraint("Equal", 5, 7),
    Sketcher.Constraint("Equal", 13, 15),
    Sketcher.Constraint("PointOnObject", 1, 2, -2),
    Sketcher.Constraint("Equal", 12, 2),
    Sketcher.Constraint("Radius", 1, 4.0),
    Sketcher.Constraint("Radius", 9, 2.0),
    Sketcher.Constraint("DistanceX", 0, 1, 0, 2, 12.0),
    Sketcher.Constraint("DistanceY", -1, 1, 1, 3, 14.0),
])
pad6 = doc.addObject("PartDesign::Pad", "Pad005")
body6.addObject(pad6)
pad6.Profile = sketch6
pad6.Length = 620

doc.recompute()
